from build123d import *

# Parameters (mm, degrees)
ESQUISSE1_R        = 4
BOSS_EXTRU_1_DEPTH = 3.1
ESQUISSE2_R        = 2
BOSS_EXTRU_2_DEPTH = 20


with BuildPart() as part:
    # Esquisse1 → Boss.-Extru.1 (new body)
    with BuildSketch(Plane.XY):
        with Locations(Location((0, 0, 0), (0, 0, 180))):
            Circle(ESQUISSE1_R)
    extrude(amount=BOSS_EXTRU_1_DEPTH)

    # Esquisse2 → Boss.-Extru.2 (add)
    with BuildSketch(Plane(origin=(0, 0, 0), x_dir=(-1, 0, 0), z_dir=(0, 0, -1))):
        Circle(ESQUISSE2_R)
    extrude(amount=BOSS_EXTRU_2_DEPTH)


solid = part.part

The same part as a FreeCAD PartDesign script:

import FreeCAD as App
import Part
import Sketcher
Q = App.Units.Quantity

doc = App.newDocument("Part")
body = doc.addObject("PartDesign::Body", "Body")

# Sketch on XY plane
sketch1 = body.newObject("Sketcher::SketchObject", "Sketch")
sketch1.AttachmentSupport = (doc.getObject("XY_Plane"), [""])
sketch1.MapMode = "FlatFace"
sketch1.addGeometry(Part.Circle(App.Vector(0, 0, 0), App.Vector(0, 0, 1), 4), False)
sketch1.addConstraint(Sketcher.Constraint("Coincident", 0, 3, -1, 1))
sketch1.addConstraint(Sketcher.Constraint("Diameter", 0, Q("8 mm")))
pad1 = body.newObject("PartDesign::Pad", "Pad")
pad1.Profile = sketch1
pad1.Length = 3.1

# Sketch on XY plane
sketch2 = body.newObject("Sketcher::SketchObject", "Sketch001")
sketch2.AttachmentSupport = (doc.getObject("XY_Plane"), [""])
sketch2.MapMode = "FlatFace"
sketch2.addGeometry(Part.Circle(App.Vector(0, 0, 0), App.Vector(0, 0, 1), 2), False)
sketch2.addConstraint(Sketcher.Constraint("Coincident", 0, 3, -1, 1))
sketch2.addConstraint(Sketcher.Constraint("Diameter", 0, Q("4 mm")))
pad2 = body.newObject("PartDesign::Pad", "Pad001")
pad2.Profile = sketch2
pad2.Length = 20
pad2.Reversed = True

doc.recompute()
